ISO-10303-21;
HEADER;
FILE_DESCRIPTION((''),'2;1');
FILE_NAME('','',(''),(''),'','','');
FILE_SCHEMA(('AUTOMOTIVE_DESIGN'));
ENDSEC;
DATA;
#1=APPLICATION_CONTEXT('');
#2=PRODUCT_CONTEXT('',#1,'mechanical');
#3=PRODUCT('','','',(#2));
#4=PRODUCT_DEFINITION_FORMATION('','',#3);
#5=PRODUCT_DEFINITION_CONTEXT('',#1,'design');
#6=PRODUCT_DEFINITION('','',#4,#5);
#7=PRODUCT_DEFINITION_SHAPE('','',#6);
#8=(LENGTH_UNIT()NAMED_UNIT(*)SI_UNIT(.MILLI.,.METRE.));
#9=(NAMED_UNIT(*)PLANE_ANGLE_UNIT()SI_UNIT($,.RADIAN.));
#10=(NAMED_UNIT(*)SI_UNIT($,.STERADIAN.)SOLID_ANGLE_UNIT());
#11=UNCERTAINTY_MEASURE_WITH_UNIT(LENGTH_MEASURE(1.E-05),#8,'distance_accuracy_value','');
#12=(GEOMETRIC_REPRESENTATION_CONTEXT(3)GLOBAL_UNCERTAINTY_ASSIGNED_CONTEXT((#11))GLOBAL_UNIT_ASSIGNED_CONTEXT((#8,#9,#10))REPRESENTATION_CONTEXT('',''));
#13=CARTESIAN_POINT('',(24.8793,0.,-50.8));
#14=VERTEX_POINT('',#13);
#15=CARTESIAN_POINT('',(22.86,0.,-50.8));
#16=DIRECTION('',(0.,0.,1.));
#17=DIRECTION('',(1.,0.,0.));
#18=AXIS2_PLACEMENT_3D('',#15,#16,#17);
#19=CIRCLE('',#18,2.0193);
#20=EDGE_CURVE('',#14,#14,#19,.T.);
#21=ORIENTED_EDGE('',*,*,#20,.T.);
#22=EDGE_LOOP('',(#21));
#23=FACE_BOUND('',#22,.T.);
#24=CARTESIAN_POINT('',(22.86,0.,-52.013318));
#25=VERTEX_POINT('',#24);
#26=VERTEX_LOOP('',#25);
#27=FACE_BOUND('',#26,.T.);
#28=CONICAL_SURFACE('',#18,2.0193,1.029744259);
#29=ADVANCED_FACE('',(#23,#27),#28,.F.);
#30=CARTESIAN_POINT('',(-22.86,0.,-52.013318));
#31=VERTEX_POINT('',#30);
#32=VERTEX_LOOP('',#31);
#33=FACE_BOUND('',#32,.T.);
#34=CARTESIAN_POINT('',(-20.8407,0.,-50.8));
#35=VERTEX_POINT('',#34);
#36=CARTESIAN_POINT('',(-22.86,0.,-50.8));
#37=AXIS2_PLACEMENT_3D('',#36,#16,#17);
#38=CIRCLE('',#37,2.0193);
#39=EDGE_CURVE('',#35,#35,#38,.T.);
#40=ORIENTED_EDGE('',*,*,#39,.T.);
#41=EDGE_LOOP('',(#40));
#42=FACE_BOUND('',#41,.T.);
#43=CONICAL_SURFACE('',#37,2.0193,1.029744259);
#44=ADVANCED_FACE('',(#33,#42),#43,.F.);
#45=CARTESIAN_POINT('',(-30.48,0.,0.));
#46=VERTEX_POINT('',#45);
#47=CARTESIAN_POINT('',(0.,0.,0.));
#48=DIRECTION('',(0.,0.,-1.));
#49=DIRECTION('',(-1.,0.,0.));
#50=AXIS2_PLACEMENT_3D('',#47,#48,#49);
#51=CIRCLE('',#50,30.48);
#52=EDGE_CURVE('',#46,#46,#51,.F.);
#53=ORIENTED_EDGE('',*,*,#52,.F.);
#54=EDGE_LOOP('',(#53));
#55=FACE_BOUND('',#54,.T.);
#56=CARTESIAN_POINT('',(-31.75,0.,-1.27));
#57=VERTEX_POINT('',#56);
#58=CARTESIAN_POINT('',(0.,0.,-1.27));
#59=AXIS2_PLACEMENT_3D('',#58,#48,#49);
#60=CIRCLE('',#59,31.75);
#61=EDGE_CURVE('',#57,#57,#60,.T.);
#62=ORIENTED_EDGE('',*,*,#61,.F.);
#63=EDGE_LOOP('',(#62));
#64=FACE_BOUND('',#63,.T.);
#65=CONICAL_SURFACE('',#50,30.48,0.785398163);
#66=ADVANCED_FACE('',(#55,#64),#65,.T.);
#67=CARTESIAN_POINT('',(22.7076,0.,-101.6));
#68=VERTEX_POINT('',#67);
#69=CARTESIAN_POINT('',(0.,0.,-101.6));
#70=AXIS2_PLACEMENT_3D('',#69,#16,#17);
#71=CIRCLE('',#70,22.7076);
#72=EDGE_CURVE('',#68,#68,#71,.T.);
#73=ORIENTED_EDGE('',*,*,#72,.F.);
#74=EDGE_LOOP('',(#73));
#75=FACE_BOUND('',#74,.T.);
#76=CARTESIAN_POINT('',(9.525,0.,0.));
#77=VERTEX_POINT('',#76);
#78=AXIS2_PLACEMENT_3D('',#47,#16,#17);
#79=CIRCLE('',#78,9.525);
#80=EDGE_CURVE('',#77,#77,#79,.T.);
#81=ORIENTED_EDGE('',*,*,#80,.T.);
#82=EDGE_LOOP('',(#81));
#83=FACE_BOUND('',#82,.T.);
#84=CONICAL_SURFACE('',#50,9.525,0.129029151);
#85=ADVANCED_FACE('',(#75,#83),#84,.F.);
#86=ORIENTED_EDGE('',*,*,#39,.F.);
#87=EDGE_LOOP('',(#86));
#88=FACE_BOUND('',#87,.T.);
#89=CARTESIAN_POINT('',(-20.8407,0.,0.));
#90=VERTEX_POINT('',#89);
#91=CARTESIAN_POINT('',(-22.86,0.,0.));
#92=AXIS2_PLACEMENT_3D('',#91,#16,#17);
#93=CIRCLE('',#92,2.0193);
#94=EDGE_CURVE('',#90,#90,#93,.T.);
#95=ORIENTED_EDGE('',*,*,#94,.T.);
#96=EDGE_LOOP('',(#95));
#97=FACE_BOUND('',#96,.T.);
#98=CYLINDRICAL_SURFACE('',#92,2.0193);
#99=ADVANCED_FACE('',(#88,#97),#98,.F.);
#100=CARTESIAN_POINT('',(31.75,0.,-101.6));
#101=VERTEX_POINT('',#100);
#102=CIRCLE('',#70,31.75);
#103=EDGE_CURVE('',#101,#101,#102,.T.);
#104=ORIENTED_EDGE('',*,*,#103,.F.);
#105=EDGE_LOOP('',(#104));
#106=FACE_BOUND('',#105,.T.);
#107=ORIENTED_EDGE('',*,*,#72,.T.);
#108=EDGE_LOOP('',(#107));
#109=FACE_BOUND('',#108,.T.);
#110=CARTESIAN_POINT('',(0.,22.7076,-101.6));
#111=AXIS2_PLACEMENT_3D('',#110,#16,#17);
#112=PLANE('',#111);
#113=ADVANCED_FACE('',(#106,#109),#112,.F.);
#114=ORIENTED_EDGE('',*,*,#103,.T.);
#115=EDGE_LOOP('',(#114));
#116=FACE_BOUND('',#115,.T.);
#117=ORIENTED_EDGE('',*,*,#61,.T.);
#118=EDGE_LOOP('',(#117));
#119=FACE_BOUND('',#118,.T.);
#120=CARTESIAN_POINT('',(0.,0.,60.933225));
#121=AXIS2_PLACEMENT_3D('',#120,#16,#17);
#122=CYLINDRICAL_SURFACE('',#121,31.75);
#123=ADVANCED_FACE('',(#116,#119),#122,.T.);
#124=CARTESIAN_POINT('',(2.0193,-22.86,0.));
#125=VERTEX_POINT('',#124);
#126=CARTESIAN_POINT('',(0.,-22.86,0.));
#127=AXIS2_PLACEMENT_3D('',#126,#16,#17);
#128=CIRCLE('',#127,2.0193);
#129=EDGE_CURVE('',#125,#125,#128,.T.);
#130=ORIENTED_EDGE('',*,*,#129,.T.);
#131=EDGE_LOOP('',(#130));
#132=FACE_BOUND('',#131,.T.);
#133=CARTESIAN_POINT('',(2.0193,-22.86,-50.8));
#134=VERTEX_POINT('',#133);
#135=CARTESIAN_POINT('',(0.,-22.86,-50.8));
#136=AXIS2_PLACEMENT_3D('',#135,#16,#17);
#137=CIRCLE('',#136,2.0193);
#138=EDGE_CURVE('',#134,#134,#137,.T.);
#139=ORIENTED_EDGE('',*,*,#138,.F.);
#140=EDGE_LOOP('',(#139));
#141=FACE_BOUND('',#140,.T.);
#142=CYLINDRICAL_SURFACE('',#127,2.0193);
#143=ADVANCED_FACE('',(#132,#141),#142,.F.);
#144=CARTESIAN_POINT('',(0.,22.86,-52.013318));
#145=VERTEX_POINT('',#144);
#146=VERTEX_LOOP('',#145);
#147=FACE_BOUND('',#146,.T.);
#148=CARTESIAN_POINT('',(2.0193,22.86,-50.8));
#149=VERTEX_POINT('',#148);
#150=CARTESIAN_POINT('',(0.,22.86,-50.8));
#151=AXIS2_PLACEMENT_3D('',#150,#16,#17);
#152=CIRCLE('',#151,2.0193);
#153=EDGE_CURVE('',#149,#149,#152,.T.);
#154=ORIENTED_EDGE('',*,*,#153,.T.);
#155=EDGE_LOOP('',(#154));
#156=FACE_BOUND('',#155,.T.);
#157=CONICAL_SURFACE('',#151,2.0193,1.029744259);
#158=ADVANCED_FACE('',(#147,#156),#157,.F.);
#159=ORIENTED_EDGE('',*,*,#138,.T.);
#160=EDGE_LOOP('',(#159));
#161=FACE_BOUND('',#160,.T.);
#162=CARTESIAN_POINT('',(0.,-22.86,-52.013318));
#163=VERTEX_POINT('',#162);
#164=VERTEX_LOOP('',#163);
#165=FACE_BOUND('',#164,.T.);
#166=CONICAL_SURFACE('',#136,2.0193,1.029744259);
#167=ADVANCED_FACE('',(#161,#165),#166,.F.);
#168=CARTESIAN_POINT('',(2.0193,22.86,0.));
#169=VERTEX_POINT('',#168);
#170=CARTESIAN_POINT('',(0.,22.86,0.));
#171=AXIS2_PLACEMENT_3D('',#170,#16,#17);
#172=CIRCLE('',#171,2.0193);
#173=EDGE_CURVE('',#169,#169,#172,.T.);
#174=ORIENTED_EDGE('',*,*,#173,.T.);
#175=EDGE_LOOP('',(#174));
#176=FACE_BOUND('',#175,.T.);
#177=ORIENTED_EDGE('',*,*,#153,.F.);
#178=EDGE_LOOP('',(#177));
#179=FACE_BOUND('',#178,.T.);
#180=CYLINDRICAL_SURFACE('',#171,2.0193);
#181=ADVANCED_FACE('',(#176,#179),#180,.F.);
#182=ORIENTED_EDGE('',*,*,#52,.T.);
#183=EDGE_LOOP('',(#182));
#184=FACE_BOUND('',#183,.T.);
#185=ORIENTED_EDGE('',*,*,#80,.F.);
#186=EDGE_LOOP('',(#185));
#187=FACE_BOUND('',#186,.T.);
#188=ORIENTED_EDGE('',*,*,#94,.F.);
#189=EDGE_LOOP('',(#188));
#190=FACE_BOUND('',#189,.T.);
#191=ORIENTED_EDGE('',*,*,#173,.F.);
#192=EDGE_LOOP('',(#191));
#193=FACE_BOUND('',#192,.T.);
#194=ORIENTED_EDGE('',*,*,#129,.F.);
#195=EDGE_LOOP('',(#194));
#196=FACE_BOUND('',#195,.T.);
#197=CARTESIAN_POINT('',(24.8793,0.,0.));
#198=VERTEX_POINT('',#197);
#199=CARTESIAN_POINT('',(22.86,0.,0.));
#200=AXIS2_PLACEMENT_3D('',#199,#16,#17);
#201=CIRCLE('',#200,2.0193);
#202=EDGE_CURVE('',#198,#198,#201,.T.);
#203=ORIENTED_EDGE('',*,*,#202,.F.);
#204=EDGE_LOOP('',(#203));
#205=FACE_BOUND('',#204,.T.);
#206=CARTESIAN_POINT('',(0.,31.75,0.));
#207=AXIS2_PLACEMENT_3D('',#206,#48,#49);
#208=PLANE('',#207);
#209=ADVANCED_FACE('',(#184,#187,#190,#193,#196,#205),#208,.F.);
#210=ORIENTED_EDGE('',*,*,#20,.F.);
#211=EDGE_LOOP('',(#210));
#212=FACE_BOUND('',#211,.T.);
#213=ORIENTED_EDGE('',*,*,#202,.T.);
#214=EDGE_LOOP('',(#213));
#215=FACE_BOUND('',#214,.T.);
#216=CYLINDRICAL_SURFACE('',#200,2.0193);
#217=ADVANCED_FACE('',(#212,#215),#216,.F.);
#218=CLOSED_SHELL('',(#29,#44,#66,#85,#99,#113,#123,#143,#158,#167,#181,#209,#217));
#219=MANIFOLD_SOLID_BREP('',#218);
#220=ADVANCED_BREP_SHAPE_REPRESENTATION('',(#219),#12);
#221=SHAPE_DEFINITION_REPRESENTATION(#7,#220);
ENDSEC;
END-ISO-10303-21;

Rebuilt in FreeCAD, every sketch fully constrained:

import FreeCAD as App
import Part
import Sketcher
Q = App.Units.Quantity


def edges_at(feature, points):
    """Names of the edges that pass closest to the given points."""
    edges = feature.Shape.Edges
    near = lambda p: min(range(len(edges)), key=lambda i: edges[i].distToShape(Part.Vertex(*p))[0])
    return sorted({f"Edge{near(p) + 1}" for p in points})

doc = App.newDocument("Part")
body = doc.addObject("PartDesign::Body", "Body")

# Sketch on YZ plane
sketch1 = body.newObject("Sketcher::SketchObject", "Sketch")
sketch1.AttachmentSupport = (doc.getObject("YZ_Plane"), [""])
sketch1.MapMode = "FlatFace"
sketch1.addGeometry(Part.LineSegment(App.Vector(10, 0, 0), App.Vector(23, -102, 0)), False)
sketch1.addGeometry(Part.LineSegment(App.Vector(23, -102, 0), App.Vector(32, -102, 0)), False)
sketch1.addGeometry(Part.LineSegment(App.Vector(32, -102, 0), App.Vector(32, 0, 0)), False)
sketch1.addGeometry(Part.LineSegment(App.Vector(32, 0, 0), App.Vector(10, 0, 0)), False)
sketch1.addConstraint(Sketcher.Constraint("Coincident", 0, 2, 1, 1))
sketch1.addConstraint(Sketcher.Constraint("Coincident", 1, 2, 2, 1))
sketch1.addConstraint(Sketcher.Constraint("Coincident", 2, 2, 3, 1))
sketch1.addConstraint(Sketcher.Constraint("Coincident", 3, 2, 0, 1))
sketch1.addConstraint(Sketcher.Constraint("Horizontal", 1))
sketch1.addConstraint(Sketcher.Constraint("Vertical", 2))
sketch1.addConstraint(Sketcher.Constraint("Horizontal", 3))
sketch1.addConstraint(Sketcher.Constraint("PointOnObject", 2, 2, -1))
sketch1.addConstraint(Sketcher.Constraint("DistanceY", 2, 1, 2, 2, Q("4 in")))
sketch1.addConstraint(Sketcher.Constraint("DistanceX", 1, 1, 1, 2, Q("0.356 in")))
sketch1.addConstraint(Sketcher.Constraint("DistanceX", 3, 2, 3, 1, Q("0.875 in")))
sketch1.addConstraint(Sketcher.Constraint("DistanceX", -1, 1, 1, 2, Q("1.25 in")))
revolution = body.newObject("PartDesign::Revolution", "Revolution")
revolution.Profile = sketch1
revolution.ReferenceAxis = (sketch1, ["V_Axis"])
revolution.Angle = 360

# Sketch on XY plane
sketch2 = body.newObject("Sketcher::SketchObject", "Sketch001")
sketch2.AttachmentSupport = (doc.getObject("XY_Plane"), [""])
sketch2.MapMode = "FlatFace"
sketch2.addGeometry(Part.Circle(App.Vector(0, 22.9, 0), App.Vector(0, 0, 1), 2), False)
sketch2.addGeometry(Part.Circle(App.Vector(22.9, 0, 0), App.Vector(0, 0, 1), 2), False)
sketch2.addGeometry(Part.Circle(App.Vector(0, -22.9, 0), App.Vector(0, 0, 1), 2), False)
sketch2.addGeometry(Part.Circle(App.Vector(-22.9, 0, 0), App.Vector(0, 0, 1), 2), False)
sketch2.addGeometry(Part.Circle(App.Vector(0, 0, 0), App.Vector(0, 0, 1), 2), False)
sketch2.addConstraint(Sketcher.Constraint("Coincident", 4, 3, -1, 1))
sketch2.addConstraint(Sketcher.Constraint("Equal", 0, 1))
sketch2.addConstraint(Sketcher.Constraint("Equal", 1, 2))
sketch2.addConstraint(Sketcher.Constraint("Equal", 2, 3))
sketch2.addConstraint(Sketcher.Constraint("Equal", 3, 4))
sketch2.addConstraint(Sketcher.Constraint("Symmetric", 0, 3, 2, 3, -1, 1))
sketch2.addConstraint(Sketcher.Constraint("Symmetric", 1, 3, 3, 3, -1, 1))
sketch2.addConstraint(Sketcher.Constraint("PointOnObject", 0, 3, -2))
sketch2.addConstraint(Sketcher.Constraint("PointOnObject", 1, 3, -1))
sketch2.addConstraint(Sketcher.Constraint("Diameter", 0, Q("0.159 in")))
sketch2.addConstraint(Sketcher.Constraint("DistanceY", -1, 1, 0, 3, Q("0.9 in")))
sketch2.addConstraint(Sketcher.Constraint("DistanceX", -1, 1, 1, 3, Q("0.9 in")))
doc.recompute()
hole = body.newObject("PartDesign::Hole", "Hole")
hole.Profile = sketch2
hole.ThreadType = "None"
hole.Diameter = Q("0.159 in")
hole.DepthType = "Dimension"
hole.Depth = Q("2 in")
hole.DrillPoint = "Angled"
hole.DrillPointAngle = 118
doc.recompute()

chamfer = body.newObject("PartDesign::Chamfer", "Chamfer")
chamfer.Base = (hole, edges_at(hole, [(0, -31.75, 0)]))
chamfer.Size = Q("0.05 in")

doc.recompute()
